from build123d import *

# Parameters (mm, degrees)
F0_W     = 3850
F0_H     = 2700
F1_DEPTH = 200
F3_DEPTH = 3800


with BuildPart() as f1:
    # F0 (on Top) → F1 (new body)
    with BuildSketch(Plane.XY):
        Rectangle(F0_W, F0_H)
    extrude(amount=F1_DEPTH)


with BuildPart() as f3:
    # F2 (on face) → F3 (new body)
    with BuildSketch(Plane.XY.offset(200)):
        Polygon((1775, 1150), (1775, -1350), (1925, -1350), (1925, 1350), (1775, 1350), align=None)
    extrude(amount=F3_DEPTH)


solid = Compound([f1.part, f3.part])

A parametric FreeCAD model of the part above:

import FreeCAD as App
import Part
import Sketcher
from FreeCAD import Vector


def add_polygon(sketch, points):
    """Adds a closed chain of lines whose ends are joined by coincident constraints."""
    first, n = sketch.GeometryCount, len(points)
    for a, b in zip(points, points[1:] + points[:1]):
        sketch.addGeometry(Part.LineSegment(App.Vector(*a, 0), App.Vector(*b, 0)), False)
    for i in range(n):
        sketch.addConstraint(Sketcher.Constraint("Coincident", first + i, 2, first + (i + 1) % n, 1))

doc = App.newDocument("Part")
params = doc.addObject("Spreadsheet::Sheet", "Params")
for row, (alias, value) in enumerate([
    ("sketch1_width", "3850 mm"),
    ("sketch1_height", "2700 mm"),
    ("pad1_length", "200 mm"),
    ("sketch2_width", "150 mm"),
    ("sketch2_height", "2700 mm"),
    ("pad2_length", "3800 mm"),
], start=1):
    params.set(f"A{row}", alias)
    params.set(f"B{row}", "=" + value)
    params.setAlias(f"B{row}", alias)

body = doc.addObject("PartDesign::Body", "Body")

# Sketch on XY plane
sketch1 = body.newObject("Sketcher::SketchObject", "Sketch")
sketch1.AttachmentSupport = (doc.getObject("XY_Plane"), [""])
sketch1.MapMode = "FlatFace"
add_polygon(sketch1, [(-1925, 1350), (-1925, -1350), (1925, -1350), (1925, 1350)])  # lines 0-3
sketch1.addConstraint([
    Sketcher.Constraint("Vertical", 0),
    Sketcher.Constraint("Horizontal", 1),
    Sketcher.Constraint("Vertical", 2),
    Sketcher.Constraint("Horizontal", 3),
    Sketcher.Constraint("Symmetric", 0, 2, 2, 2, -1, 1),
    Sketcher.Constraint("DistanceX", 1, 1, 1, 2, 3850.0),
    Sketcher.Constraint("DistanceY", 0, 2, 0, 1, 2700.0),
])
sketch1.setExpression("Constraints[9]", "Params.sketch1_width")
sketch1.setExpression("Constraints[10]", "Params.sketch1_height")
pad1 = body.newObject("PartDesign::Pad", "Pad")
pad1.Profile = sketch1
pad1.setExpression("Length", "Params.pad1_length")
body2 = doc.addObject("PartDesign::Body", "Body001")

# Sketch on XY plane
sketch2 = body2.newObject("Sketcher::SketchObject", "Sketch001")
sketch2.AttachmentSupport = (doc.getObject("XY_Plane001"), [""])
sketch2.MapMode = "FlatFace"
sketch2.AttachmentOffset = App.Placement(Vector(0, 0, 200), App.Rotation())
add_polygon(sketch2, [(1775, -1350), (1925, -1350), (1925, 1350), (1775, 1350)])  # lines 0-3
sketch2.addConstraint([
    Sketcher.Constraint("Horizontal", 0),
    Sketcher.Constraint("Vertical", 1),
    Sketcher.Constraint("Horizontal", 2),
    Sketcher.Constraint("Vertical", 3),
    Sketcher.Constraint("DistanceX", 0, 1, 0, 2, 150.0),
    Sketcher.Constraint("DistanceY", 1, 1, 1, 2, 2700.0),
    Sketcher.Constraint("DistanceX", -1, 1, 0, 2, 1925.0),
    Sketcher.Constraint("DistanceY", 0, 2, -1, 1, 1350.0),
])
sketch2.setExpression("Constraints[8]", "Params.sketch2_width")
sketch2.setExpression("Constraints[9]", "Params.sketch2_height")
pad2 = body2.newObject("PartDesign::Pad", "Pad001")
pad2.Profile = sketch2
pad2.setExpression("Length", "Params.pad2_length")

doc.recompute()
